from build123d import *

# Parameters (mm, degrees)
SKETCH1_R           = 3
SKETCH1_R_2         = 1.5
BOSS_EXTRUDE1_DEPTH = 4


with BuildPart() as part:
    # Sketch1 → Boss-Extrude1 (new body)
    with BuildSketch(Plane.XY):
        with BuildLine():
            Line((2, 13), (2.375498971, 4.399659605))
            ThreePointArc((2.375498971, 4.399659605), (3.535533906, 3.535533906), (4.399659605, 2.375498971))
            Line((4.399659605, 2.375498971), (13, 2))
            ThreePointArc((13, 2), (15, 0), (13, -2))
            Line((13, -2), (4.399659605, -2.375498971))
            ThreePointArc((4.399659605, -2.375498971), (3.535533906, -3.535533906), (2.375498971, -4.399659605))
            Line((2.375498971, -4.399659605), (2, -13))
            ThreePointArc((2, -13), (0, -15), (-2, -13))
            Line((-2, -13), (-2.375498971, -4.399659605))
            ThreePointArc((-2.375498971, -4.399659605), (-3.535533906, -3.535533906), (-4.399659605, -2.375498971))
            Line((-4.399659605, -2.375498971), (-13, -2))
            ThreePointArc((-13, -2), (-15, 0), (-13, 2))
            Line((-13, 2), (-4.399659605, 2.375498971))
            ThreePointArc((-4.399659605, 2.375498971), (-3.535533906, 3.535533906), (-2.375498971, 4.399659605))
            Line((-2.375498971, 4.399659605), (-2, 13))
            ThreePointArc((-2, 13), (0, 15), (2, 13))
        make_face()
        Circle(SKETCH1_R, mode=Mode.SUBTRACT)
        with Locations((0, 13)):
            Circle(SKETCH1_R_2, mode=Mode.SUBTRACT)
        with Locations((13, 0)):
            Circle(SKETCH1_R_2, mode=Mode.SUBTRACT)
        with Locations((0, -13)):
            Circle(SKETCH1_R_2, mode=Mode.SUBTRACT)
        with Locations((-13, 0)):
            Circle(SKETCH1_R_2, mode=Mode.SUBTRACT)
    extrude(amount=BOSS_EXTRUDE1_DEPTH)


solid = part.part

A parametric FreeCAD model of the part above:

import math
import FreeCAD as App
import Part
import Sketcher
from FreeCAD import Vector
Q = App.Units.Quantity

doc = App.newDocument("Part")
body = doc.addObject("PartDesign::Body", "Body")

# Sketch on XY plane
sketch1 = body.newObject("Sketcher::SketchObject", "Sketch")
sketch1.AttachmentSupport = (doc.getObject("XY_Plane"), [""])
sketch1.MapMode = "FlatFace"
sketch1.addGeometry([
    Part.LineSegment(Vector(2.4, 4.4, 0), Vector(2, 13, 0)),  # 0
    Part.ArcOfCircle(Part.Circle(Vector(0, 13, 0), Vector(0, 0, 1), 2), math.radians(0), math.radians(180)),  # 1
    Part.LineSegment(Vector(-2, 13, 0), Vector(-2.4, 4.4, 0)),  # 2
    Part.ArcOfCircle(Part.Circle(Vector(0, 0, 0), Vector(0, 0, 1), 5), math.radians(118), math.radians(152)),  # 3
    Part.LineSegment(Vector(-4.4, 2.4, 0), Vector(-13, 2, 0)),  # 4
    Part.ArcOfCircle(Part.Circle(Vector(-13, 0, 0), Vector(0, 0, 1), 2), math.radians(90), math.radians(270)),  # 5
    Part.LineSegment(Vector(-13, -2, 0), Vector(-4.4, -2.4, 0)),  # 6
    Part.ArcOfCircle(Part.Circle(Vector(0, 0, 0), Vector(0, 0, 1), 5), math.radians(-152), math.radians(-118)),  # 7
    Part.LineSegment(Vector(-2.4, -4.4, 0), Vector(-2, -13, 0)),  # 8
    Part.ArcOfCircle(Part.Circle(Vector(0, -13, 0), Vector(0, 0, 1), 2), math.radians(180), math.radians(360)),  # 9
    Part.LineSegment(Vector(2, -13, 0), Vector(2.4, -4.4, 0)),  # 10
    Part.ArcOfCircle(Part.Circle(Vector(0, 0, 0), Vector(0, 0, 1), 5), math.radians(-62), math.radians(-28)),  # 11
    Part.LineSegment(Vector(4.4, -2.4, 0), Vector(13, -2, 0)),  # 12
    Part.ArcOfCircle(Part.Circle(Vector(13, 0, 0), Vector(0, 0, 1), 2), math.radians(-90), math.radians(90)),  # 13
    Part.LineSegment(Vector(13, 2, 0), Vector(4.4, 2.4, 0)),  # 14
    Part.ArcOfCircle(Part.Circle(Vector(0, 0, 0), Vector(0, 0, 1), 5), math.radians(28), math.radians(62)),  # 15
    Part.Circle(Vector(0, -13, 0), Vector(0, 0, 1), 1.5),  # 16
    Part.Circle(Vector(13, 0, 0), Vector(0, 0, 1), 1.5),  # 17
    Part.Circle(Vector(0, 0, 0), Vector(0, 0, 1), 3),  # 18
    Part.Circle(Vector(-13, 0, 0), Vector(0, 0, 1), 1.5),  # 19
    Part.Circle(Vector(0, 13, 0), Vector(0, 0, 1), 1.5),  # 20
], False)
sketch1.addConstraint([
    Sketcher.Constraint("Coincident", 0, 2, 1, 1),
    Sketcher.Constraint("Coincident", 1, 2, 2, 1),
    Sketcher.Constraint("Coincident", 2, 2, 3, 1),
    Sketcher.Constraint("Coincident", 3, 2, 4, 1),
    Sketcher.Constraint("Coincident", 4, 2, 5, 1),
    Sketcher.Constraint("Coincident", 5, 2, 6, 1),
    Sketcher.Constraint("Coincident", 6, 2, 7, 1),
    Sketcher.Constraint("Coincident", 7, 2, 8, 1),
    Sketcher.Constraint("Coincident", 8, 2, 9, 1),
    Sketcher.Constraint("Coincident", 9, 2, 10, 1),
    Sketcher.Constraint("Coincident", 10, 2, 11, 1),
    Sketcher.Constraint("Coincident", 11, 2, 12, 1),
    Sketcher.Constraint("Coincident", 12, 2, 13, 1),
    Sketcher.Constraint("Coincident", 13, 2, 14, 1),
    Sketcher.Constraint("Coincident", 14, 2, 15, 1),
    Sketcher.Constraint("Coincident", 15, 2, 0, 1),
    Sketcher.Constraint("Coincident", 3, 3, -1, 1),
    Sketcher.Constraint("Coincident", 7, 3, -1, 1),
    Sketcher.Constraint("Coincident", 11, 3, -1, 1),
    Sketcher.Constraint("Coincident", 15, 3, -1, 1),
    Sketcher.Constraint("Coincident", 18, 3, -1, 1),
    Sketcher.Constraint("Coincident", 16, 3, 9, 3),
    Sketcher.Constraint("Coincident", 17, 3, 13, 3),
    Sketcher.Constraint("Coincident", 19, 3, 5, 3),
    Sketcher.Constraint("Coincident", 20, 3, 1, 3),
    Sketcher.Constraint("Equal", 1, 5),
    Sketcher.Constraint("Equal", 3, 7),
    Sketcher.Constraint("Equal", 5, 9),
    Sketcher.Constraint("Equal", 7, 11),
    Sketcher.Constraint("Equal", 9, 13),
    Sketcher.Constraint("Equal", 11, 15),
    Sketcher.Constraint("Equal", 16, 17),
    Sketcher.Constraint("Equal", 17, 19),
    Sketcher.Constraint("Equal", 19, 20),
    Sketcher.Constraint("Symmetric", 1, 3, 9, 3, -1, 1),
    Sketcher.Constraint("Symmetric", 5, 3, 13, 3, -1, 1),
    Sketcher.Constraint("Symmetric", 0, 2, 1, 2, -2),
    Sketcher.Constraint("Symmetric", 5, 2, 12, 2, -2),
    Sketcher.Constraint("Perpendicular", 0, 4),
    Sketcher.Constraint("Perpendicular", 2, 6),
    Sketcher.Constraint("Perpendicular", 4, 8),
    Sketcher.Constraint("Perpendicular", 6, 10),
    Sketcher.Constraint("Perpendicular", 8, 12),
    Sketcher.Constraint("Perpendicular", 10, 14),
    Sketcher.Constraint("Horizontal", 20, 3, 0, 2),
    Sketcher.Constraint("Horizontal", 16, 3, 8, 2),
    Sketcher.Constraint("Horizontal", 8, 2, 9, 2),
    Sketcher.Constraint("Horizontal", 7, 2, 10, 2),
    Sketcher.Constraint("Horizontal", 3, 2, 14, 2),
    Sketcher.Constraint("Vertical", 19, 3, 4, 2),
    Sketcher.Constraint("Vertical", 4, 2, 5, 2),
    Sketcher.Constraint("Equal", 2, 4),
    Sketcher.Constraint("Diameter", 16, 3.0),
    Sketcher.Constraint("Diameter", 18, 6.0),
    Sketcher.Constraint("Radius", 1, 2.0),
    Sketcher.Constraint("Radius", 3, 5.0),
    Sketcher.Constraint("DistanceY", -1, 1, 1, 3, 13.0),
    Sketcher.Constraint("Angle", 0, Q("92.5 deg")),
])
pad1 = body.newObject("PartDesign::Pad", "Pad")
pad1.Profile = sketch1
pad1.Length = 4

doc.recompute()
